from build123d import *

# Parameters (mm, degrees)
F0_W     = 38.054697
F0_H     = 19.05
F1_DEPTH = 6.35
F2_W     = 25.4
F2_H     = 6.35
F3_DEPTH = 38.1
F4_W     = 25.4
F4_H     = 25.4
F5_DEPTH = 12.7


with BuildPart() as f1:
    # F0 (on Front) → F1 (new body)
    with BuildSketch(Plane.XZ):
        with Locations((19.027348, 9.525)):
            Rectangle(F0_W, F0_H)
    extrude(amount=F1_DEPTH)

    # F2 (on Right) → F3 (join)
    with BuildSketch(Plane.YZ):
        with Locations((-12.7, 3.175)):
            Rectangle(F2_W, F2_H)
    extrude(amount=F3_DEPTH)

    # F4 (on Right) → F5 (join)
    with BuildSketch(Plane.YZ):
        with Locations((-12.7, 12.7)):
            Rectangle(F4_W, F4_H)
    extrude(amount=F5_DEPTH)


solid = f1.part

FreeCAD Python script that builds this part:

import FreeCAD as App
import Part
import Sketcher

V = App.Vector
Q = App.Units.Quantity

doc = App.newDocument("Part")
params = doc.addObject("Spreadsheet::Sheet", "Params")
for row, (alias, value) in enumerate([
    ("sketch1_height", "0.75 in"),
    ("pad1_length", "0.25 in"),
    ("sketch2_width", "1 in"),
    ("sketch2_height", "0.25 in"),
    ("pad2_length", "1.5 in"),
    ("sketch3_width", "1 in"),
    ("pad3_length", "0.5 in"),
], start=1):
    params.set(f"A{row}", alias)
    params.set(f"B{row}", "=" + value)
    params.setAlias(f"B{row}", alias)

body = doc.addObject("PartDesign::Body", "Body")

# Sketch on XZ plane
sketch1 = doc.addObject("Sketcher::SketchObject", "Sketch")
body.addObject(sketch1)
sketch1.AttachmentSupport = (doc.XZ_Plane, [""])
sketch1.MapMode = "FlatFace"
sketch1.addGeometry(Part.LineSegment(V(0, 19.05, 0), V(0, 0, 0)), False)
sketch1.addGeometry(Part.LineSegment(V(0, 0, 0), V(38.054696, 0, 0)), False)
sketch1.addGeometry(Part.LineSegment(V(38.054696, 0, 0), V(38.054696, 19.05, 0)), False)
sketch1.addGeometry(Part.LineSegment(V(38.054696, 19.05, 0), V(0, 19.05, 0)), False)
sketch1.addConstraint(Sketcher.Constraint("Coincident", 0, 2, 1, 1))
sketch1.addConstraint(Sketcher.Constraint("Coincident", 1, 2, 2, 1))
sketch1.addConstraint(Sketcher.Constraint("Coincident", 2, 2, 3, 1))
sketch1.addConstraint(Sketcher.Constraint("Coincident", 3, 2, 0, 1))
sketch1.addConstraint(Sketcher.Constraint("Vertical", 0))
sketch1.addConstraint(Sketcher.Constraint("Horizontal", 1))
sketch1.addConstraint(Sketcher.Constraint("Vertical", 2))
sketch1.addConstraint(Sketcher.Constraint("Horizontal", 3))
sketch1.addConstraint(Sketcher.Constraint("Coincident", 0, 2, -1, 1))
sketch1.addConstraint(Sketcher.Constraint("DistanceY", 0, 2, 0, 1, Q("0.75 in")))
sketch1.addConstraint(Sketcher.Constraint("DistanceX", 1, 1, 1, 2, Q("38.054697 mm")))
sketch1.setExpression("Constraints[9]", "Params.sketch1_height")
pad1 = doc.addObject("PartDesign::Pad", "Pad")
body.addObject(pad1)
pad1.Profile = sketch1
pad1.setExpression("Length", "Params.pad1_length")

# Sketch on YZ plane
sketch2 = doc.addObject("Sketcher::SketchObject", "Sketch001")
body.addObject(sketch2)
sketch2.AttachmentSupport = (doc.YZ_Plane, [""])
sketch2.MapMode = "FlatFace"
sketch2.addGeometry(Part.LineSegment(V(-25.4, 6.35, 0), V(-25.4, 0, 0)), False)
sketch2.addGeometry(Part.LineSegment(V(-25.4, 0, 0), V(0, 0, 0)), False)
sketch2.addGeometry(Part.LineSegment(V(0, 0, 0), V(0, 6.35, 0)), False)
sketch2.addGeometry(Part.LineSegment(V(0, 6.35, 0), V(-25.4, 6.35, 0)), False)
sketch2.addConstraint(Sketcher.Constraint("Coincident", 0, 2, 1, 1))
sketch2.addConstraint(Sketcher.Constraint("Coincident", 1, 2, 2, 1))
sketch2.addConstraint(Sketcher.Constraint("Coincident", 2, 2, 3, 1))
sketch2.addConstraint(Sketcher.Constraint("Coincident", 3, 2, 0, 1))
sketch2.addConstraint(Sketcher.Constraint("Vertical", 0))
sketch2.addConstraint(Sketcher.Constraint("Horizontal", 1))
sketch2.addConstraint(Sketcher.Constraint("Vertical", 2))
sketch2.addConstraint(Sketcher.Constraint("Horizontal", 3))
sketch2.addConstraint(Sketcher.Constraint("Coincident", 1, 2, -1, 1))
sketch2.addConstraint(Sketcher.Constraint("DistanceX", 1, 1, 1, 2, Q("1 in")))
sketch2.addConstraint(Sketcher.Constraint("DistanceY", 0, 2, 0, 1, Q("0.25 in")))
sketch2.setExpression("Constraints[9]", "Params.sketch2_width")
sketch2.setExpression("Constraints[10]", "Params.sketch2_height")
pad2 = doc.addObject("PartDesign::Pad", "Pad001")
body.addObject(pad2)
pad2.Profile = sketch2
pad2.setExpression("Length", "Params.pad2_length")

# Sketch on YZ plane
sketch3 = doc.addObject("Sketcher::SketchObject", "Sketch002")
body.addObject(sketch3)
sketch3.AttachmentSupport = (doc.YZ_Plane, [""])
sketch3.MapMode = "FlatFace"
sketch3.addGeometry(Part.LineSegment(V(-25.4, 25.4, 0), V(-25.4, 0, 0)), False)
sketch3.addGeometry(Part.LineSegment(V(-25.4, 0, 0), V(0, 0, 0)), False)
sketch3.addGeometry(Part.LineSegment(V(0, 0, 0), V(0, 25.4, 0)), False)
sketch3.addGeometry(Part.LineSegment(V(0, 25.4, 0), V(-25.4, 25.4, 0)), False)
sketch3.addConstraint(Sketcher.Constraint("Coincident", 0, 2, 1, 1))
sketch3.addConstraint(Sketcher.Constraint("Coincident", 1, 2, 2, 1))
sketch3.addConstraint(Sketcher.Constraint("Coincident", 2, 2, 3, 1))
sketch3.addConstraint(Sketcher.Constraint("Coincident", 3, 2, 0, 1))
sketch3.addConstraint(Sketcher.Constraint("Vertical", 0))
sketch3.addConstraint(Sketcher.Constraint("Horizontal", 1))
sketch3.addConstraint(Sketcher.Constraint("Vertical", 2))
sketch3.addConstraint(Sketcher.Constraint("Horizontal", 3))
sketch3.addConstraint(Sketcher.Constraint("Coincident", 1, 2, -1, 1))
sketch3.addConstraint(Sketcher.Constraint("Equal", 3, 0))
sketch3.addConstraint(Sketcher.Constraint("DistanceX", 1, 1, 1, 2, Q("1 in")))
sketch3.setExpression("Constraints[10]", "Params.sketch3_width")
pad3 = doc.addObject("PartDesign::Pad", "Pad002")
body.addObject(pad3)
pad3.Profile = sketch3
pad3.setExpression("Length", "Params.pad3_length")

doc.recompute()
